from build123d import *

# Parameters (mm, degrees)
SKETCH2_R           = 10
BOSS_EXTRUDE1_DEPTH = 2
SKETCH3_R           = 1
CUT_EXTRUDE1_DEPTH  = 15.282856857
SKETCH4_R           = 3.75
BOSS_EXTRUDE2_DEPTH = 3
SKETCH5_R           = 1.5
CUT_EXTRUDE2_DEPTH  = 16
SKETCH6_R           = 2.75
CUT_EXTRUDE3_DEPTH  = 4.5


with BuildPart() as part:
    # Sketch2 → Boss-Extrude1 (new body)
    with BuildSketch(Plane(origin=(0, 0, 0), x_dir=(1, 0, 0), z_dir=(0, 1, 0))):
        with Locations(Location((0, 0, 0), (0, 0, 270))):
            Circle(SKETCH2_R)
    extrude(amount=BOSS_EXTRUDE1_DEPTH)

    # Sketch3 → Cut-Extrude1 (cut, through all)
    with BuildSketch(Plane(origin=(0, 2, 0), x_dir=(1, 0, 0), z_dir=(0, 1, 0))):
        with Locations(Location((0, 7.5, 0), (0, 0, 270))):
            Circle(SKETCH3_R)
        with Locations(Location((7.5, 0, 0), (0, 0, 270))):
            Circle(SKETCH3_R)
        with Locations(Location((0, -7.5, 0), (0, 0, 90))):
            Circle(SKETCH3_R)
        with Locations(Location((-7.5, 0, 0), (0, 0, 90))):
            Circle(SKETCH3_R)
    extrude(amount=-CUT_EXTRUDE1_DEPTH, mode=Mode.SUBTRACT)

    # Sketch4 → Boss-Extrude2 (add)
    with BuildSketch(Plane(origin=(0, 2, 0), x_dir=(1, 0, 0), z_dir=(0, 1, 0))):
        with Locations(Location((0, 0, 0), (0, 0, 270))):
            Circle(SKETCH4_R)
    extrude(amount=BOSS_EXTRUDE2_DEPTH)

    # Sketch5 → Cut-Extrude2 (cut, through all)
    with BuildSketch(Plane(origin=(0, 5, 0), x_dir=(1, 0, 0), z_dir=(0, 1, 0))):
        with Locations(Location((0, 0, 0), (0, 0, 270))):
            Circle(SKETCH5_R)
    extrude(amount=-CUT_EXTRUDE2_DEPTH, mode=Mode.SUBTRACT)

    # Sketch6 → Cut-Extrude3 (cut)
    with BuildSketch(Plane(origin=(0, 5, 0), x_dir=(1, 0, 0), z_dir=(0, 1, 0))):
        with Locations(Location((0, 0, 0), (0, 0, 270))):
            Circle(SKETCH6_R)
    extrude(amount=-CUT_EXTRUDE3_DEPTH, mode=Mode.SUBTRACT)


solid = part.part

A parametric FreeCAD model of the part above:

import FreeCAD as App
import Part
import Sketcher
from FreeCAD import Vector
Q = App.Units.Quantity

doc = App.newDocument("Part")
params = doc.addObject("Spreadsheet::Sheet", "Params")
for row, (alias, value) in enumerate([
    ("sketch1_diameter", "20 mm"),
    ("pad1_length", "2 mm"),
    ("sketch2_diameter", "2 mm"),
    ("sketch3_diameter", "7.5 mm"),
    ("pad2_length", "3 mm"),
    ("sketch4_diameter", "3 mm"),
    ("sketch5_diameter", "5.5 mm"),
    ("pocket3_length", "4.5 mm"),
], start=1):
    params.set(f"A{row}", alias)
    params.set(f"B{row}", "=" + value)
    params.setAlias(f"B{row}", alias)

body = doc.addObject("PartDesign::Body", "Body")

sketch1 = doc.addObject("Sketcher::SketchObject", "Sketch")
body.addObject(sketch1)
sketch1.AttachmentSupport = (doc.XZ_Plane, [""])
sketch1.MapMode = "FlatFace"
sketch1.addGeometry(Part.Circle(Vector(0, 0, 0), Vector(0, 0, 1), 10), False)
sketch1.addConstraint(Sketcher.Constraint("Coincident", 0, 3, -1, 1))
sketch1.addConstraint(Sketcher.Constraint("Diameter", 0, Q("20 mm")))
sketch1.setExpression("Constraints[1]", "Params.sketch1_diameter")
pad1 = doc.addObject("PartDesign::Pad", "Pad")
body.addObject(pad1)
pad1.Profile = sketch1
pad1.setExpression("Length", "Params.pad1_length")
pad1.Reversed = True

sketch2 = doc.addObject("Sketcher::SketchObject", "Sketch001")
body.addObject(sketch2)
sketch2.AttachmentSupport = (doc.XZ_Plane, [""])
sketch2.MapMode = "FlatFace"
sketch2.AttachmentOffset = App.Placement(Vector(0, 0, -2), App.Rotation())
sketch2.addGeometry(Part.Circle(Vector(0, -7.5, 0), Vector(0, 0, 1), 1), False)
sketch2.addGeometry(Part.Circle(Vector(7.5, 0, 0), Vector(0, 0, 1), 1), False)
sketch2.addGeometry(Part.Circle(Vector(0, 7.5, 0), Vector(0, 0, 1), 1), False)
sketch2.addGeometry(Part.Circle(Vector(-7.5, 0, 0), Vector(0, 0, 1), 1), False)
sketch2.addConstraint(Sketcher.Constraint("Equal", 0, 1))
sketch2.addConstraint(Sketcher.Constraint("Equal", 1, 2))
sketch2.addConstraint(Sketcher.Constraint("Equal", 2, 3))
sketch2.addConstraint(Sketcher.Constraint("Symmetric", 0, 3, 2, 3, -1, 1))
sketch2.addConstraint(Sketcher.Constraint("Symmetric", 1, 3, 3, 3, -1, 1))
sketch2.addConstraint(Sketcher.Constraint("PointOnObject", 0, 3, -2))
sketch2.addConstraint(Sketcher.Constraint("PointOnObject", 1, 3, -1))
sketch2.addConstraint(Sketcher.Constraint("Diameter", 0, Q("2 mm")))
sketch2.addConstraint(Sketcher.Constraint("DistanceY", 0, 3, 2, 3, Q("15 mm")))
sketch2.addConstraint(Sketcher.Constraint("DistanceX", 3, 3, 1, 3, Q("15 mm")))
sketch2.setExpression("Constraints[7]", "Params.sketch2_diameter")
pocket1 = doc.addObject("PartDesign::Pocket", "Pocket")
body.addObject(pocket1)
pocket1.Profile = sketch2
pocket1.Type = "ThroughAll"
pocket1.Reversed = True

sketch3 = doc.addObject("Sketcher::SketchObject", "Sketch002")
body.addObject(sketch3)
sketch3.AttachmentSupport = (doc.XZ_Plane, [""])
sketch3.MapMode = "FlatFace"
sketch3.AttachmentOffset = App.Placement(Vector(0, 0, -2), App.Rotation())
sketch3.addGeometry(Part.Circle(Vector(0, 0, 0), Vector(0, 0, 1), 3.8), False)
sketch3.addConstraint(Sketcher.Constraint("Coincident", 0, 3, -1, 1))
sketch3.addConstraint(Sketcher.Constraint("Diameter", 0, Q("7.5 mm")))
sketch3.setExpression("Constraints[1]", "Params.sketch3_diameter")
pad2 = doc.addObject("PartDesign::Pad", "Pad001")
body.addObject(pad2)
pad2.Profile = sketch3
pad2.setExpression("Length", "Params.pad2_length")
pad2.Reversed = True

sketch4 = doc.addObject("Sketcher::SketchObject", "Sketch003")
body.addObject(sketch4)
sketch4.AttachmentSupport = (doc.XZ_Plane, [""])
sketch4.MapMode = "FlatFace"
sketch4.AttachmentOffset = App.Placement(Vector(0, 0, -5), App.Rotation())
sketch4.addGeometry(Part.Circle(Vector(0, 0, 0), Vector(0, 0, 1), 1.5), False)
sketch4.addConstraint(Sketcher.Constraint("Coincident", 0, 3, -1, 1))
sketch4.addConstraint(Sketcher.Constraint("Diameter", 0, Q("3 mm")))
sketch4.setExpression("Constraints[1]", "Params.sketch4_diameter")
pocket2 = doc.addObject("PartDesign::Pocket", "Pocket001")
body.addObject(pocket2)
pocket2.Profile = sketch4
pocket2.Type = "ThroughAll"
pocket2.Reversed = True

sketch5 = doc.addObject("Sketcher::SketchObject", "Sketch004")
body.addObject(sketch5)
sketch5.AttachmentSupport = (doc.XZ_Plane, [""])
sketch5.MapMode = "FlatFace"
sketch5.AttachmentOffset = App.Placement(Vector(0, 0, -5), App.Rotation())
sketch5.addGeometry(Part.Circle(Vector(0, 0, 0), Vector(0, 0, 1), 2.8), False)
sketch5.addConstraint(Sketcher.Constraint("Coincident", 0, 3, -1, 1))
sketch5.addConstraint(Sketcher.Constraint("Diameter", 0, Q("5.5 mm")))
sketch5.setExpression("Constraints[1]", "Params.sketch5_diameter")
pocket3 = doc.addObject("PartDesign::Pocket", "Pocket002")
body.addObject(pocket3)
pocket3.Profile = sketch5
pocket3.setExpression("Length", "Params.pocket3_length")
pocket3.Reversed = True

doc.recompute()
